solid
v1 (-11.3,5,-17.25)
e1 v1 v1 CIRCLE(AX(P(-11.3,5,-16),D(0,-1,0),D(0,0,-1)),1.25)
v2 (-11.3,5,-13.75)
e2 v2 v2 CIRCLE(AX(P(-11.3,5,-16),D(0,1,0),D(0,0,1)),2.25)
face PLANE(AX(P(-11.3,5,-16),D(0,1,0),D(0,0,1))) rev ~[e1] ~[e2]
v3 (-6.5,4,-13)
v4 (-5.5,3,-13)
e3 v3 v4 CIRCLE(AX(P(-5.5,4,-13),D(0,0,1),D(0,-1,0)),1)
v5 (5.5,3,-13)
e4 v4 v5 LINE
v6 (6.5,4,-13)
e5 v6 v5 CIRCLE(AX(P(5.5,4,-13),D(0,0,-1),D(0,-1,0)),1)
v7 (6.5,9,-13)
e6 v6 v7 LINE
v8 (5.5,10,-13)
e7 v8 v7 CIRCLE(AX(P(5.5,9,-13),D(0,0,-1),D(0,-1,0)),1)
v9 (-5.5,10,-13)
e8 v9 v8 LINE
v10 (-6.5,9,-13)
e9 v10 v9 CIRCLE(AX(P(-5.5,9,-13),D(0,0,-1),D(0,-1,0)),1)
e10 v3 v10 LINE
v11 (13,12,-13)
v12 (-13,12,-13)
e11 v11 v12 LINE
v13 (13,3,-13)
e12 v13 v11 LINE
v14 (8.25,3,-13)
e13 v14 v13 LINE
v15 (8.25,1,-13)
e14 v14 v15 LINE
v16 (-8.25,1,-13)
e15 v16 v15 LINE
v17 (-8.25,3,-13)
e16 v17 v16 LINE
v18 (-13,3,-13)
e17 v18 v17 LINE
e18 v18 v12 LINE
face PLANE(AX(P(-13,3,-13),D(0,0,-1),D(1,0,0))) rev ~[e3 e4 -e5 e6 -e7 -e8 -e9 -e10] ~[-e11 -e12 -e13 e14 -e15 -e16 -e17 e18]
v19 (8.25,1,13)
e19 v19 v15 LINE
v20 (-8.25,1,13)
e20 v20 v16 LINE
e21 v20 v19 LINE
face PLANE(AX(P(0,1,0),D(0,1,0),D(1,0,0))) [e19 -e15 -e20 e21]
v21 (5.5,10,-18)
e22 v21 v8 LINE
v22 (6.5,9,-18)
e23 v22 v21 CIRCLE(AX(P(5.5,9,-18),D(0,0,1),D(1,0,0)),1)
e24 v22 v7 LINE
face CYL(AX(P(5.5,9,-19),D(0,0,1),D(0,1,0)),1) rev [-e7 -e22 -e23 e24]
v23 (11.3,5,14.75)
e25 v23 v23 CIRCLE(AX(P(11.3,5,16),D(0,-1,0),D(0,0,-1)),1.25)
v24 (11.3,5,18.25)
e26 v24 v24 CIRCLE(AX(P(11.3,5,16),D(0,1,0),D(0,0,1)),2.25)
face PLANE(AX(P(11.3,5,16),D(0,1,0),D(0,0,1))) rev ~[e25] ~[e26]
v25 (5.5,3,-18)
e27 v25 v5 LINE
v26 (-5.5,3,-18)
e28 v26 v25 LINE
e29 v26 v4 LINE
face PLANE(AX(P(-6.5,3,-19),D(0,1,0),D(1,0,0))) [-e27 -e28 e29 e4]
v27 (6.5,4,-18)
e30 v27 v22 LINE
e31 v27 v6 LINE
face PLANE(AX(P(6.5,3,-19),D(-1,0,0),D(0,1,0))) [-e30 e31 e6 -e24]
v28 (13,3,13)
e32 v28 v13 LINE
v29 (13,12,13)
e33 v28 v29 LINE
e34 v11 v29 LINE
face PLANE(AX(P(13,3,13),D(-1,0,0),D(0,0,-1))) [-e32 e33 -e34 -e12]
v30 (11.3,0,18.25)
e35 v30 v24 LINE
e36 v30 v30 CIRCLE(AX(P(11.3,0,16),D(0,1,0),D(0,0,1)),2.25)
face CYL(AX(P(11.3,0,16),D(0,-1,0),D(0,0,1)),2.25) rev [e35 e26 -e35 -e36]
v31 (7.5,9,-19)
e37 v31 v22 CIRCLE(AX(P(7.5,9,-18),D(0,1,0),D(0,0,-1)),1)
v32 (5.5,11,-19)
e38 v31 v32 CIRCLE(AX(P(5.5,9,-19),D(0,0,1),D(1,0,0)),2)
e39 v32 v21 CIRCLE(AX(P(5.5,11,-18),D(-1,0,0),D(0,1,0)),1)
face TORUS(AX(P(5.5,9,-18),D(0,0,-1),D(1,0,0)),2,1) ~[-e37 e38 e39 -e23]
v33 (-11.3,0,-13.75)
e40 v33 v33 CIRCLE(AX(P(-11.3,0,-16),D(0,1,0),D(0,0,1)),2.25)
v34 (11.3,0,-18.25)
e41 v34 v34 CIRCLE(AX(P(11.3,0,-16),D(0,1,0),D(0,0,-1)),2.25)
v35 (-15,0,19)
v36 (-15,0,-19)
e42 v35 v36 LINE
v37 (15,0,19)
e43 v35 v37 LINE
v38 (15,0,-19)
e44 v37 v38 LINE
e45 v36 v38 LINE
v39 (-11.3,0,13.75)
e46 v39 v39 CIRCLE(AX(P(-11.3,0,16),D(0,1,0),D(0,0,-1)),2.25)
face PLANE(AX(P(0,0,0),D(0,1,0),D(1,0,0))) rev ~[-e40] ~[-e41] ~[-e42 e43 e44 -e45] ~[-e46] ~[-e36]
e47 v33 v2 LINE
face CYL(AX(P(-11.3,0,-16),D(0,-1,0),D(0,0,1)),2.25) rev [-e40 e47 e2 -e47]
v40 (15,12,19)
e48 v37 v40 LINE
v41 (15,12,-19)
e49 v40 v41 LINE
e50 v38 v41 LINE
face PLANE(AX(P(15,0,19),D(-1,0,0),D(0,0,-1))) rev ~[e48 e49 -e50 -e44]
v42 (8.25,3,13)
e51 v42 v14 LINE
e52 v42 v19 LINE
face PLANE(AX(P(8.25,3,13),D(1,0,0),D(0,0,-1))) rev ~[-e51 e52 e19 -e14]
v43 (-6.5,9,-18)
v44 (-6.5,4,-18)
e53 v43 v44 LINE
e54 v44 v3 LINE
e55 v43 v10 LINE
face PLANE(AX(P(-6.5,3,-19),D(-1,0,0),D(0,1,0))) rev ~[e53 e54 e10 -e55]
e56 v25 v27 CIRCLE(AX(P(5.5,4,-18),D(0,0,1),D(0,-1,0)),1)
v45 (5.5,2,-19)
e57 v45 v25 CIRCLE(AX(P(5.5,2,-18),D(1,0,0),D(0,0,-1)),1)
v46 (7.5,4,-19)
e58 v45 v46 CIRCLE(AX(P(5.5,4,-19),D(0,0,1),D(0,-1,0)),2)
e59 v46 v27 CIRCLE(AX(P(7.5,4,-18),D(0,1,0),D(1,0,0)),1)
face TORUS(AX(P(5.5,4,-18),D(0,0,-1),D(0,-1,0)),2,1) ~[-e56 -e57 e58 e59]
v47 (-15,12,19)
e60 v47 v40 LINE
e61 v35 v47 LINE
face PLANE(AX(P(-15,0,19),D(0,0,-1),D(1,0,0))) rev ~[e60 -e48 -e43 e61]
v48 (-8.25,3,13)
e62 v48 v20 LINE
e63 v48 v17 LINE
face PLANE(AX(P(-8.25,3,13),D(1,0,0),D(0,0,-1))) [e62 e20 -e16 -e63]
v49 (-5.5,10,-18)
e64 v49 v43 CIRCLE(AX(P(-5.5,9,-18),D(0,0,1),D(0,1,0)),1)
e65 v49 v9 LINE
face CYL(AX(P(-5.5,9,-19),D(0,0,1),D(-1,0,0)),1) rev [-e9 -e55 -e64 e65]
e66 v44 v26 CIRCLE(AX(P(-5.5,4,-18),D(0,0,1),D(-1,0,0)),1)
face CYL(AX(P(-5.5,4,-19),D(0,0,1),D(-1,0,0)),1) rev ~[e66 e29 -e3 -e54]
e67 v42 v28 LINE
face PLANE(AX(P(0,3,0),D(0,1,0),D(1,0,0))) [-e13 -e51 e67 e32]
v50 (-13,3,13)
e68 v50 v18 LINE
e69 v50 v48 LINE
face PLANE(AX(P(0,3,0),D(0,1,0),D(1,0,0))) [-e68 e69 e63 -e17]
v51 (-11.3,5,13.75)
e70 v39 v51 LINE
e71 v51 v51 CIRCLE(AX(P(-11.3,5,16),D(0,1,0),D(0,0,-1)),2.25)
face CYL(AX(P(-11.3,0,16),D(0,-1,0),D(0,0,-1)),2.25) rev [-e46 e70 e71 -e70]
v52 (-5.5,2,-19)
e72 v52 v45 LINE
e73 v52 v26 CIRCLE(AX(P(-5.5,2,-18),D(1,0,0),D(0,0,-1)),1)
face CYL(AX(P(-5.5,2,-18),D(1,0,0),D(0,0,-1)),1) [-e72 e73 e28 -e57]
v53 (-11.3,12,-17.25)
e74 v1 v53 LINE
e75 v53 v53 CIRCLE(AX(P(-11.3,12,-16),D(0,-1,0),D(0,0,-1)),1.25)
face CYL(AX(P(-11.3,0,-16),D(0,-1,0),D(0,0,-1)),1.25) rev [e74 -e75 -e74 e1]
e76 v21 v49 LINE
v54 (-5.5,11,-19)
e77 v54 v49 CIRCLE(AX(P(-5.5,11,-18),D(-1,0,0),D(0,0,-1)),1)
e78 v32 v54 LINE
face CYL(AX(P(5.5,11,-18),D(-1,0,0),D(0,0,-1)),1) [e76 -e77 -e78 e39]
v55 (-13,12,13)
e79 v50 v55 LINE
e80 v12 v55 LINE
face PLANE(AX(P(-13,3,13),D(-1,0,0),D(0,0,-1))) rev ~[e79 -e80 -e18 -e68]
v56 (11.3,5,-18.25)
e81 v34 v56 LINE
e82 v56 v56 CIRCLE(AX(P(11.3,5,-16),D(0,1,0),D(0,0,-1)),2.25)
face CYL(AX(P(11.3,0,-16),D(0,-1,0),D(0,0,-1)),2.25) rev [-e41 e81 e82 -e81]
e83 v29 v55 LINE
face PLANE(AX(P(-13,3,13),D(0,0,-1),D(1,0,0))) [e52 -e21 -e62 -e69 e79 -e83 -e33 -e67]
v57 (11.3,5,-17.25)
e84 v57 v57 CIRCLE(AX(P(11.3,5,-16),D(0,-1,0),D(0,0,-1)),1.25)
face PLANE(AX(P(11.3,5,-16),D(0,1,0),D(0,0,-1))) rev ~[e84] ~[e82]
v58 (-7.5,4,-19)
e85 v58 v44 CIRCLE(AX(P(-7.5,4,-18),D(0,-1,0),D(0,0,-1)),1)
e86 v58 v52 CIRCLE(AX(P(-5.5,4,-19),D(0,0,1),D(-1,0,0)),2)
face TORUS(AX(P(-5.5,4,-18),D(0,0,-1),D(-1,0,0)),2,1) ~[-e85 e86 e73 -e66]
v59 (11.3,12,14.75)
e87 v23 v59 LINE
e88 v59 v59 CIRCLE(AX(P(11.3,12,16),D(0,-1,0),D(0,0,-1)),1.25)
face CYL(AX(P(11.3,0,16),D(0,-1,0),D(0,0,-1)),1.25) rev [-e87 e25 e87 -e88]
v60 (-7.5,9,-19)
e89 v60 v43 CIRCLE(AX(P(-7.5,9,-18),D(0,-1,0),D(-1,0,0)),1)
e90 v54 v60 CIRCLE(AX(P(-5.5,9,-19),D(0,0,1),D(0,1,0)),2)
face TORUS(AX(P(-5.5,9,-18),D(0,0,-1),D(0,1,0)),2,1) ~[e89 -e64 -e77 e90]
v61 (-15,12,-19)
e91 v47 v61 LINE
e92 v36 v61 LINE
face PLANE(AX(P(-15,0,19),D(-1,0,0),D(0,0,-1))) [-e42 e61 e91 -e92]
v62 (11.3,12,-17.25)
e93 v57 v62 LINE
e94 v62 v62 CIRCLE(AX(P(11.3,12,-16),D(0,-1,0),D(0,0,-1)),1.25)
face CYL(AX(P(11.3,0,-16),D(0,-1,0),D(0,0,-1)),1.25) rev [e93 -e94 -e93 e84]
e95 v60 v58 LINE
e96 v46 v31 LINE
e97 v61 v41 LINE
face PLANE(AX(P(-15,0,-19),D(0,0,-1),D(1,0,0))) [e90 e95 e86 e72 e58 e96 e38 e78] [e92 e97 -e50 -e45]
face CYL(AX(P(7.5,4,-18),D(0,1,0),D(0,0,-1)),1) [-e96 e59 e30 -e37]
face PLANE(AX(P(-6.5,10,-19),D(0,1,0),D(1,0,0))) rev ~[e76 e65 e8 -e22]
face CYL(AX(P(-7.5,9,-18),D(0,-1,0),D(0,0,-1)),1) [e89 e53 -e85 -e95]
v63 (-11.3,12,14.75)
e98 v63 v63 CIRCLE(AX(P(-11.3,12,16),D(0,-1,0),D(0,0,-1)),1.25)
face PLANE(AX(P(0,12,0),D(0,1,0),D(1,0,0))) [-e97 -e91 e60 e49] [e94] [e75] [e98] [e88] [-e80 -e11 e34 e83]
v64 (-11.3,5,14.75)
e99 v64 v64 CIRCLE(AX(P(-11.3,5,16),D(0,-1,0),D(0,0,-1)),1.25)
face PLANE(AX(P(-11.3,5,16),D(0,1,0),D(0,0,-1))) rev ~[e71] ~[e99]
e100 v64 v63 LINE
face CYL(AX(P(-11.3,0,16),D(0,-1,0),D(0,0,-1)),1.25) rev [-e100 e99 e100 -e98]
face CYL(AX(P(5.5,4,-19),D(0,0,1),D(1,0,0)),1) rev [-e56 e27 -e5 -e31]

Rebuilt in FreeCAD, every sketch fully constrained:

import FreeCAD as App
import Part
import Sketcher

V = App.Vector
Q = App.Units.Quantity


def edges_at(feature, points):
    """Names of the edges that pass closest to the given points."""
    edges = feature.Shape.Edges
    near = lambda p: min(range(len(edges)), key=lambda i: edges[i].distToShape(Part.Vertex(*p))[0])
    return sorted({f"Edge{near(p) + 1}" for p in points})

doc = App.newDocument("Part")
body = doc.addObject("PartDesign::Body", "Body")

# Sketch on XZ plane
sketch1 = body.newObject("Sketcher::SketchObject", "Sketch")
sketch1.AttachmentSupport = (doc.getObject("XZ_Plane"), [""])
sketch1.MapMode = "FlatFace"
sketch1.addGeometry([
    Part.LineSegment(V(-15, -19, 0), V(-15, 19, 0)),
    Part.LineSegment(V(-15, 19, 0), V(15, 19, 0)),
    Part.LineSegment(V(15, 19, 0), V(15, -19, 0)),
    Part.LineSegment(V(15, -19, 0), V(-15, -19, 0)),
], False)
sketch1.addConstraint([
    Sketcher.Constraint("Coincident", 0, 2, 1, 1),
    Sketcher.Constraint("Coincident", 1, 2, 2, 1),
    Sketcher.Constraint("Coincident", 2, 2, 3, 1),
    Sketcher.Constraint("Coincident", 3, 2, 0, 1),
    Sketcher.Constraint("Vertical", 0),
    Sketcher.Constraint("Horizontal", 1),
    Sketcher.Constraint("Vertical", 2),
    Sketcher.Constraint("Horizontal", 3),
    Sketcher.Constraint("Symmetric", 0, 2, 2, 2, -1, 1),
    Sketcher.Constraint("DistanceX", 1, 1, 1, 2, Q("30 mm")),
    Sketcher.Constraint("DistanceY", 0, 1, 0, 2, Q("38 mm")),
])
pad1 = body.newObject("PartDesign::Pad", "Pad")
pad1.Profile = sketch1
pad1.Length = 12
pad1.Reversed = True

# Sketch on XZ plane
sketch2 = body.newObject("Sketcher::SketchObject", "Sketch001")
sketch2.AttachmentSupport = (doc.getObject("XZ_Plane"), [""])
sketch2.MapMode = "FlatFace"
sketch2.AttachmentOffset = App.Placement(V(0, 0, -3), App.Rotation())
sketch2.addGeometry([
    Part.LineSegment(V(-13, -13, 0), V(-13, 13, 0)),
    Part.LineSegment(V(-13, 13, 0), V(13, 13, 0)),
    Part.LineSegment(V(13, 13, 0), V(13, -13, 0)),
    Part.LineSegment(V(13, -13, 0), V(-13, -13, 0)),
], False)
sketch2.addConstraint([
    Sketcher.Constraint("Coincident", 0, 2, 1, 1),
    Sketcher.Constraint("Coincident", 1, 2, 2, 1),
    Sketcher.Constraint("Coincident", 2, 2, 3, 1),
    Sketcher.Constraint("Coincident", 3, 2, 0, 1),
    Sketcher.Constraint("Vertical", 0),
    Sketcher.Constraint("Horizontal", 1),
    Sketcher.Constraint("Vertical", 2),
    Sketcher.Constraint("Horizontal", 3),
    Sketcher.Constraint("Symmetric", 0, 2, 2, 2, -1, 1),
    Sketcher.Constraint("Equal", 3, 0),
    Sketcher.Constraint("DistanceX", 1, 1, 1, 2, Q("26 mm")),
])
pocket1 = body.newObject("PartDesign::Pocket", "Pocket")
pocket1.Profile = sketch2
pocket1.Length = 14

# Sketch on XZ plane
sketch3 = body.newObject("Sketcher::SketchObject", "Sketch002")
sketch3.AttachmentSupport = (doc.getObject("XZ_Plane"), [""])
sketch3.MapMode = "FlatFace"
sketch3.AttachmentOffset = App.Placement(V(0, 0, -3), App.Rotation())
sketch3.addGeometry([
    Part.LineSegment(V(-8, -13, 0), V(-8, 13, 0)),
    Part.LineSegment(V(-8, 13, 0), V(8, 13, 0)),
    Part.LineSegment(V(8, 13, 0), V(8, -13, 0)),
    Part.LineSegment(V(8, -13, 0), V(-8, -13, 0)),
], False)
sketch3.addConstraint([
    Sketcher.Constraint("Coincident", 0, 2, 1, 1),
    Sketcher.Constraint("Coincident", 1, 2, 2, 1),
    Sketcher.Constraint("Coincident", 2, 2, 3, 1),
    Sketcher.Constraint("Coincident", 3, 2, 0, 1),
    Sketcher.Constraint("Vertical", 0),
    Sketcher.Constraint("Horizontal", 1),
    Sketcher.Constraint("Vertical", 2),
    Sketcher.Constraint("Horizontal", 3),
    Sketcher.Constraint("Symmetric", 0, 2, 2, 2, -1, 1),
    Sketcher.Constraint("DistanceY", 0, 1, 0, 2, Q("26 mm")),
    Sketcher.Constraint("DistanceX", 1, 1, 1, 2, Q("16.5 mm")),
])
pocket2 = body.newObject("PartDesign::Pocket", "Pocket001")
pocket2.Profile = sketch3
pocket2.Length = 2
pocket2.Reversed = True

# Sketch on XZ plane
sketch4 = body.newObject("Sketcher::SketchObject", "Sketch003")
sketch4.AttachmentSupport = (doc.getObject("XZ_Plane"), [""])
sketch4.MapMode = "FlatFace"
sketch4.addGeometry([
    Part.Circle(V(-11.3, -16, 0), V(0, 0, 1), 1.2),
    Part.Circle(V(11.3, -16, 0), V(0, 0, 1), 1.2),
    Part.Circle(V(11.3, 16, 0), V(0, 0, 1), 1.2),
    Part.Circle(V(-11.3, 16, 0), V(0, 0, 1), 1.2),
], False)
sketch4.addConstraint([
    Sketcher.Constraint("Equal", 0, 1),
    Sketcher.Constraint("Equal", 1, 2),
    Sketcher.Constraint("Equal", 2, 3),
    Sketcher.Constraint("Symmetric", 0, 3, 2, 3, -1, 1),
    Sketcher.Constraint("Symmetric", 1, 3, 3, 3, -1, 1),
    Sketcher.Constraint("Symmetric", 0, 3, 1, 3, -2),
    Sketcher.Constraint("Diameter", 0, Q("2.5 mm")),
    Sketcher.Constraint("DistanceY", 0, 3, -1, 1, Q("16 mm")),
    Sketcher.Constraint("DistanceX", 0, 3, -1, 1, Q("11.3 mm")),
])
pocket3 = body.newObject("PartDesign::Pocket", "Pocket002")
pocket3.Profile = sketch4
pocket3.Length = 21

# Sketch on XZ plane
sketch5 = body.newObject("Sketcher::SketchObject", "Sketch004")
sketch5.AttachmentSupport = (doc.getObject("XZ_Plane"), [""])
sketch5.MapMode = "FlatFace"
sketch5.addGeometry([
    Part.Circle(V(-11.3, -16, 0), V(0, 0, 1), 2.2),
    Part.Circle(V(11.3, -16, 0), V(0, 0, 1), 2.2),
    Part.Circle(V(11.3, 16, 0), V(0, 0, 1), 2.2),
    Part.Circle(V(-11.3, 16, 0), V(0, 0, 1), 2.2),
], False)
sketch5.addConstraint([
    Sketcher.Constraint("Equal", 0, 1),
    Sketcher.Constraint("Equal", 1, 2),
    Sketcher.Constraint("Equal", 2, 3),
    Sketcher.Constraint("Symmetric", 0, 3, 2, 3, -1, 1),
    Sketcher.Constraint("Symmetric", 1, 3, 3, 3, -1, 1),
    Sketcher.Constraint("Symmetric", 0, 3, 1, 3, -2),
    Sketcher.Constraint("Diameter", 0, Q("4.5 mm")),
    Sketcher.Constraint("DistanceY", 0, 3, -1, 1, Q("16 mm")),
    Sketcher.Constraint("DistanceX", 0, 3, -1, 1, Q("11.3 mm")),
])
pocket4 = body.newObject("PartDesign::Pocket", "Pocket003")
pocket4.Profile = sketch5
pocket4.Length = 5

# Sketch on XY plane
sketch6 = body.newObject("Sketcher::SketchObject", "Sketch005")
sketch6.AttachmentSupport = (doc.getObject("XY_Plane"), [""])
sketch6.MapMode = "FlatFace"
sketch6.AttachmentOffset = App.Placement(V(0, 0, -19), App.Rotation())
sketch6.addGeometry([
    Part.LineSegment(V(-6, 10, 0), V(-6, 3, 0)),
    Part.LineSegment(V(-6, 3, 0), V(6, 3, 0)),
    Part.LineSegment(V(6, 3, 0), V(6, 10, 0)),
    Part.LineSegment(V(6, 10, 0), V(-6, 10, 0)),
], False)
sketch6.addConstraint([
    Sketcher.Constraint("Coincident", 0, 2, 1, 1),
    Sketcher.Constraint("Coincident", 1, 2, 2, 1),
    Sketcher.Constraint("Coincident", 2, 2, 3, 1),
    Sketcher.Constraint("Coincident", 3, 2, 0, 1),
    Sketcher.Constraint("Vertical", 0),
    Sketcher.Constraint("Horizontal", 1),
    Sketcher.Constraint("Vertical", 2),
    Sketcher.Constraint("Horizontal", 3),
    Sketcher.Constraint("DistanceX", 1, 1, 1, 2, Q("13 mm")),
    Sketcher.Constraint("DistanceY", 0, 2, 0, 1, Q("7 mm")),
    Sketcher.Constraint("DistanceY", -1, 1, 0, 2, Q("3 mm")),
    Sketcher.Constraint("DistanceX", 0, 2, -1, 1, Q("6.5 mm")),
])
pocket5 = body.newObject("PartDesign::Pocket", "Pocket004")
pocket5.Profile = sketch6
pocket5.Length = 7
pocket5.Reversed = True
doc.recompute()

fillet = body.newObject("PartDesign::Fillet", "Fillet")
fillet.Base = (pocket5, edges_at(pocket5, [
    (6.5, 3, -16),
    (6.5, 10, -16),
    (-6.5, 10, -16),
    (-6.5, 3, -16),
]))
fillet.Radius = 1
doc.recompute()

fillet2 = body.newObject("PartDesign::Fillet", "Fillet001")
fillet2.Base = (fillet, edges_at(fillet, [
    (0, 3, -19),
    (6.5, 6.5, -19),
    (0, 10, -19),
    (-6.5, 6.5, -19),
    (6.207, 3.293, -19),
    (6.207, 9.707, -19),
    (-6.207, 9.707, -19),
    (-6.207, 3.293, -19),
]))
fillet2.Radius = 1

doc.recompute()
